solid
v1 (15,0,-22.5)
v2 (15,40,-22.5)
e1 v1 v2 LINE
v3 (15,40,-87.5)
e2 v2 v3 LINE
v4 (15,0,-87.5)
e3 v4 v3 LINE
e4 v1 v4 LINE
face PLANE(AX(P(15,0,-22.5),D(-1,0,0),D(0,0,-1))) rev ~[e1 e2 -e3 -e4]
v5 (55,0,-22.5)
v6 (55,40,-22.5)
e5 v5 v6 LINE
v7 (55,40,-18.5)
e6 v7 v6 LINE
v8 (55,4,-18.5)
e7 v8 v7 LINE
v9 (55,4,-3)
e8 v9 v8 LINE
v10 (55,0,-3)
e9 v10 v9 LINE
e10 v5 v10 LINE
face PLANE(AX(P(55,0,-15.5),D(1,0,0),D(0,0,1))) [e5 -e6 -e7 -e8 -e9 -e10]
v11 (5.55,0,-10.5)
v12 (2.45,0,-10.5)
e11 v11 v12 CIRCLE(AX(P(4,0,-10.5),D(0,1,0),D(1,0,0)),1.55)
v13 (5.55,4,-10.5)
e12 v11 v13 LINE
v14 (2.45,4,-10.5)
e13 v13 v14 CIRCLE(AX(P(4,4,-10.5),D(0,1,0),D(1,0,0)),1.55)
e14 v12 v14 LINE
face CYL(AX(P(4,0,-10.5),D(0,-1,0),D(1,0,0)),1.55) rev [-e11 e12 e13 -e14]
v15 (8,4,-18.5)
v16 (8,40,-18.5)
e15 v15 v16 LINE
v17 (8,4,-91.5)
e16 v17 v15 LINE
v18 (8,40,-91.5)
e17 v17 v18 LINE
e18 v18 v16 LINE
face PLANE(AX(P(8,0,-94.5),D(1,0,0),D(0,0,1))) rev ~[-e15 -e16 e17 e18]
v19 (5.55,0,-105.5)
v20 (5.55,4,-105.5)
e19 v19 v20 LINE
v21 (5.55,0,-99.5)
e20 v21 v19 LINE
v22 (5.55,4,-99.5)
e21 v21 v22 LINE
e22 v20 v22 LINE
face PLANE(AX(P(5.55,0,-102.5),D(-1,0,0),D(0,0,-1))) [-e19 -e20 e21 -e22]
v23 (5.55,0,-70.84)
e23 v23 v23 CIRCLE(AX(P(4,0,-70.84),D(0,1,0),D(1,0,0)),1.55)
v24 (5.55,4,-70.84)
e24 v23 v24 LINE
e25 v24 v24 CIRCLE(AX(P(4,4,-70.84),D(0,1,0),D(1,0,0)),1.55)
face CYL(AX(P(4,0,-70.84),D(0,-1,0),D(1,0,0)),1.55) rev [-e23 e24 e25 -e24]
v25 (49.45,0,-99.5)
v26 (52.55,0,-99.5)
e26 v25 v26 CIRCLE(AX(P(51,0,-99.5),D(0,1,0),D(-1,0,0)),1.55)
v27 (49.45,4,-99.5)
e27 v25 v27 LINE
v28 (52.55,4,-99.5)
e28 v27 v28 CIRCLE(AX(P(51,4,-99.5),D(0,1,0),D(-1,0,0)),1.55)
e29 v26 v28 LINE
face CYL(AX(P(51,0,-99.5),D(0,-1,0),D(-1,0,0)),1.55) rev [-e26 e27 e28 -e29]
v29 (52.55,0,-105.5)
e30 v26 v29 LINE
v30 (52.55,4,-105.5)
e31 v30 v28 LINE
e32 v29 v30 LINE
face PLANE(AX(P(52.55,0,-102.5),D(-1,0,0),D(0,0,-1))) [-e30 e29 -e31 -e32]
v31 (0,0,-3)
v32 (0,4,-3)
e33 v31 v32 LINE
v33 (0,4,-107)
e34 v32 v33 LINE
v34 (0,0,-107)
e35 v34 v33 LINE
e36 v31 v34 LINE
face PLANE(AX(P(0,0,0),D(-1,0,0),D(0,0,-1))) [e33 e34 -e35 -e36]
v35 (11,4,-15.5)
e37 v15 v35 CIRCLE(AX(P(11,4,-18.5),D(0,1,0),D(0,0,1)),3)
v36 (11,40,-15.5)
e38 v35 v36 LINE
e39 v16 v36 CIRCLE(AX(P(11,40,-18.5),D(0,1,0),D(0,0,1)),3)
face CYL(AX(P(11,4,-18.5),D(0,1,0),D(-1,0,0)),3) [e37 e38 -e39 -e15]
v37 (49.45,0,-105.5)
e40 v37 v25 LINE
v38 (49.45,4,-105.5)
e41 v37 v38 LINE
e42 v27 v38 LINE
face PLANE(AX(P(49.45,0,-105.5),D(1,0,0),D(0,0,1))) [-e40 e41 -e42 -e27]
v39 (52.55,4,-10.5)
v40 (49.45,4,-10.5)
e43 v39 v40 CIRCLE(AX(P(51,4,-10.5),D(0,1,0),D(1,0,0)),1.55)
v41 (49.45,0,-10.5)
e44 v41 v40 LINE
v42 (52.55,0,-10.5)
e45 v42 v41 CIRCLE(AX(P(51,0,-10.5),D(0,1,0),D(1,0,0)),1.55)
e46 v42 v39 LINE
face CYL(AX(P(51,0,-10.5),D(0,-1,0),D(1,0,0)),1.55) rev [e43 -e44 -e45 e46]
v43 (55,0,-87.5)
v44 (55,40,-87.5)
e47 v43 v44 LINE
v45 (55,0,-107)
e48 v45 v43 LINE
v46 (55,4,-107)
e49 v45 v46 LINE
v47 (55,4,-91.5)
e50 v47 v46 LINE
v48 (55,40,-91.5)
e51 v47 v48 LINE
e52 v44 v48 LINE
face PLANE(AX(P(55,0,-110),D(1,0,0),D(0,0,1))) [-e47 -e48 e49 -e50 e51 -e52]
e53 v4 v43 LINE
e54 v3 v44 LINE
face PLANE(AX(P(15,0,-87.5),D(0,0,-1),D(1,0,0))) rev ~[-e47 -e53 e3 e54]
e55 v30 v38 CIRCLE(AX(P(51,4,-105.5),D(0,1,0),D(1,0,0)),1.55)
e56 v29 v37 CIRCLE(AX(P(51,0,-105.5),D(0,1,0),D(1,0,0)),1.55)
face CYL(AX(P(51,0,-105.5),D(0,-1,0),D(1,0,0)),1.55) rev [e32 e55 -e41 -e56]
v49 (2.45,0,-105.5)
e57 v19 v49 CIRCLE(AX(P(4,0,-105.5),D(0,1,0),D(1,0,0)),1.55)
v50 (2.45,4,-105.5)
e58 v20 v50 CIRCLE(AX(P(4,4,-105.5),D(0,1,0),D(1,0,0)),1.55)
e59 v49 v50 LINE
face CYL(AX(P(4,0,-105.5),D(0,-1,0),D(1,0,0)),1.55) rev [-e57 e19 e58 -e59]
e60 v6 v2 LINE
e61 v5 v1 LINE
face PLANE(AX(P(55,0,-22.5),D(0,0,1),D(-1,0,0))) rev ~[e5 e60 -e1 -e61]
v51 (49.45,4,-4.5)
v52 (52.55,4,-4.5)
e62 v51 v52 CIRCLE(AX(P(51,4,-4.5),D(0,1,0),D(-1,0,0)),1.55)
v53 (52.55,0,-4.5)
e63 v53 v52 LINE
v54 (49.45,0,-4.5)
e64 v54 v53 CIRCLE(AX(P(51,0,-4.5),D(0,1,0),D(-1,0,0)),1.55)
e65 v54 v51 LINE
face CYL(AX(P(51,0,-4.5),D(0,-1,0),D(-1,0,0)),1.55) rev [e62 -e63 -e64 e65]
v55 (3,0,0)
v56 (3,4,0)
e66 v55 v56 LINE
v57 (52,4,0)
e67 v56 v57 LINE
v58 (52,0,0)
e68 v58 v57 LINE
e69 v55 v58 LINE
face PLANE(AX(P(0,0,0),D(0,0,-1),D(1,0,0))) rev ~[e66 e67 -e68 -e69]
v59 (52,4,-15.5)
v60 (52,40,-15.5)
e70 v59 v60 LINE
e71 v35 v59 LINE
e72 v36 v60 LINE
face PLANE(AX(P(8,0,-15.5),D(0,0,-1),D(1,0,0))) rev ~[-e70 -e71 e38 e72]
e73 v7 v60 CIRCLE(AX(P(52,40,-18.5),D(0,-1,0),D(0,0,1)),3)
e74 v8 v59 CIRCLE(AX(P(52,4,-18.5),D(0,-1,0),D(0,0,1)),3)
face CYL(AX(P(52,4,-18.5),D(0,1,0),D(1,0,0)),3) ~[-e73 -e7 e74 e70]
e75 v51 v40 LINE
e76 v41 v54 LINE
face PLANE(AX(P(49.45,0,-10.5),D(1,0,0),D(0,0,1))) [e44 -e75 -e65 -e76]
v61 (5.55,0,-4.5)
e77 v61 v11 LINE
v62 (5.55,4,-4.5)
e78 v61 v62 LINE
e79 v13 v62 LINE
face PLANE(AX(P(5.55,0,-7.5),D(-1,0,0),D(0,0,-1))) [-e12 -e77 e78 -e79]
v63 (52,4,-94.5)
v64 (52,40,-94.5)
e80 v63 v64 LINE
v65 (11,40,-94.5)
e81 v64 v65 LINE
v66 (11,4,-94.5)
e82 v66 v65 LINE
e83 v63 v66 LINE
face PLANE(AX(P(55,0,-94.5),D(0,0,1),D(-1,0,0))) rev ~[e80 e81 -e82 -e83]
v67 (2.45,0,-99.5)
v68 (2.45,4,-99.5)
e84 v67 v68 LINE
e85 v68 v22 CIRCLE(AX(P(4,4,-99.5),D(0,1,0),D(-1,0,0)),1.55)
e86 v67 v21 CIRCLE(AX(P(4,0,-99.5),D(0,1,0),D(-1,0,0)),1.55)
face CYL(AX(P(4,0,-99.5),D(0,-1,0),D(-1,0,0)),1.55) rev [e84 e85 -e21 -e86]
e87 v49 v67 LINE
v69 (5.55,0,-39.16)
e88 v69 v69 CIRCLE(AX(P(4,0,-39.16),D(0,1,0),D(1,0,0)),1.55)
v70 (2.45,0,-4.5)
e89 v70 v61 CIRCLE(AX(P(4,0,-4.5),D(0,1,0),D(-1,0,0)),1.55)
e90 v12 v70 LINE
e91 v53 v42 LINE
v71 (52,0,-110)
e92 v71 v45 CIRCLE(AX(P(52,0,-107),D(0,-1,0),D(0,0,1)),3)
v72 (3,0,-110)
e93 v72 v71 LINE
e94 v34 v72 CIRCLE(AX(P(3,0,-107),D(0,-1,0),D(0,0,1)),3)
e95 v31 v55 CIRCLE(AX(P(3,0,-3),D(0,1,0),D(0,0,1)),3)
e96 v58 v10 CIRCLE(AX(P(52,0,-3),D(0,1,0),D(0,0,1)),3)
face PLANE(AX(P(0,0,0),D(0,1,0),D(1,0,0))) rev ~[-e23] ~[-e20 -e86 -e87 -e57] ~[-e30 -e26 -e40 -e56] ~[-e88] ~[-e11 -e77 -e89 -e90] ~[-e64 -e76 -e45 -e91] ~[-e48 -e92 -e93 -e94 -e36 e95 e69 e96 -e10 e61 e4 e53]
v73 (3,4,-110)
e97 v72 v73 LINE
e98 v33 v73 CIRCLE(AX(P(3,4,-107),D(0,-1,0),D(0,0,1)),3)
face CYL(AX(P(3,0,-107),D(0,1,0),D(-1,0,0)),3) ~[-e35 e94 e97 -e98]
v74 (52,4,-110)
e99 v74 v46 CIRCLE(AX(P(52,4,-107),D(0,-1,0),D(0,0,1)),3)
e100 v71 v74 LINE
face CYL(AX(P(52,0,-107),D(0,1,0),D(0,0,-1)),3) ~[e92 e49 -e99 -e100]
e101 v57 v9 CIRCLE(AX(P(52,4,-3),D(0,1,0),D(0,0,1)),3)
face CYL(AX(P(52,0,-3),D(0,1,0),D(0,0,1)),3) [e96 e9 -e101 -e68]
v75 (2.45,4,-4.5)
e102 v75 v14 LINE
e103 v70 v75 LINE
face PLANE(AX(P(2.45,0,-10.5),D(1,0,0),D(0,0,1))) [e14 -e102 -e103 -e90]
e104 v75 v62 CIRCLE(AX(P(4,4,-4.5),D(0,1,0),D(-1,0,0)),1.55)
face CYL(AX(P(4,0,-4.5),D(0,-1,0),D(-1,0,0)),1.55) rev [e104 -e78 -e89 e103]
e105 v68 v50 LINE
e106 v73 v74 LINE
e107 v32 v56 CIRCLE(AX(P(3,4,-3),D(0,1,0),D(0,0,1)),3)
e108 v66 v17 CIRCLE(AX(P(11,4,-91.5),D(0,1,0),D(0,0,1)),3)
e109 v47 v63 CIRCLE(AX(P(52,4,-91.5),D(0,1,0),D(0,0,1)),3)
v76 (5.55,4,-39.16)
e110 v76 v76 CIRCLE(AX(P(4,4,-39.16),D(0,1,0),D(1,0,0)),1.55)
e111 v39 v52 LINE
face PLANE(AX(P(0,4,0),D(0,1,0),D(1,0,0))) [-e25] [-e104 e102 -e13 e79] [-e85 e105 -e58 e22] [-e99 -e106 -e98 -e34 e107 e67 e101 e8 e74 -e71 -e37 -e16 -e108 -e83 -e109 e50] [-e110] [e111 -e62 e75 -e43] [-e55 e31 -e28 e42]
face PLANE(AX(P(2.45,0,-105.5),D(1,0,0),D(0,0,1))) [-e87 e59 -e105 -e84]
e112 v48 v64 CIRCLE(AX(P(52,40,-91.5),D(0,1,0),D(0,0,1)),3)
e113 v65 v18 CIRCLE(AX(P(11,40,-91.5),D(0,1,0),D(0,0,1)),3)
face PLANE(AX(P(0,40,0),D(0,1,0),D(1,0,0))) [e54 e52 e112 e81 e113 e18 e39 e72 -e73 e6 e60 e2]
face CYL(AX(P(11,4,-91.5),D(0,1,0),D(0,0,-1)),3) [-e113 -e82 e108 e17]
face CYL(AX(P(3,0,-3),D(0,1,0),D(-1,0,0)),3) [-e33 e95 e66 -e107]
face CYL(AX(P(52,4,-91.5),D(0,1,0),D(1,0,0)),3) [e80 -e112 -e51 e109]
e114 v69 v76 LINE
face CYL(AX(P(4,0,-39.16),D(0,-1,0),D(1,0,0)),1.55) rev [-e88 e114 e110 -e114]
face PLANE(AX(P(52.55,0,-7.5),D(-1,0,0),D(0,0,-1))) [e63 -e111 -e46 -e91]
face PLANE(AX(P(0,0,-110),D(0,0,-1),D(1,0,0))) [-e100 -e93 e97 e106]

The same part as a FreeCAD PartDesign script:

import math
import FreeCAD as App
import Part
import Sketcher


def edges_at(feature, points):
    """Names of the edges that pass closest to the given points."""
    edges = feature.Shape.Edges
    near = lambda p: min(range(len(edges)), key=lambda i: edges[i].distToShape(Part.Vertex(*p))[0])
    return sorted({f"Edge{near(p) + 1}" for p in points})

doc = App.newDocument("Part")
body = doc.addObject("PartDesign::Body", "Body")

sketch1 = body.newObject("Sketcher::SketchObject", "Sketch")
sketch1.AttachmentSupport = (doc.getObject("XZ_Plane"), [""])
sketch1.MapMode = "FlatFace"
sketch1.addGeometry([
    Part.LineSegment(App.Vector(0, -110, 0), App.Vector(0, 0, 0)),
    Part.LineSegment(App.Vector(0, 0, 0), App.Vector(55, 0, 0)),
    Part.LineSegment(App.Vector(55, 0, 0), App.Vector(55, -15.5, 0)),
    Part.LineSegment(App.Vector(55, -15.5, 0), App.Vector(8, -15.5, 0)),
    Part.LineSegment(App.Vector(8, -15.5, 0), App.Vector(8, -94.5, 0)),
    Part.LineSegment(App.Vector(8, -94.5, 0), App.Vector(55, -94.5, 0)),
    Part.LineSegment(App.Vector(55, -94.5, 0), App.Vector(55, -110, 0)),
    Part.LineSegment(App.Vector(55, -110, 0), App.Vector(0, -110, 0)),
    Part.LineSegment(App.Vector(5.55, -10.5, 0), App.Vector(5.55, -4.5, 0)),
    Part.ArcOfCircle(Part.Circle(App.Vector(4, -4.5, 0), App.Vector(0, 0, 1), 1.55), math.radians(0), math.radians(180)),
    Part.LineSegment(App.Vector(2.45, -4.5, 0), App.Vector(2.45, -10.5, 0)),
    Part.ArcOfCircle(Part.Circle(App.Vector(4, -10.5, 0), App.Vector(0, 0, 1), 1.55), math.radians(180), math.radians(360)),
    Part.Circle(App.Vector(4, -39.16, 0), App.Vector(0, 0, 1), 1.55),
    Part.LineSegment(App.Vector(52.55, -10.5, 0), App.Vector(52.55, -4.5, 0)),
    Part.ArcOfCircle(Part.Circle(App.Vector(51, -4.5, 0), App.Vector(0, 0, 1), 1.55), math.radians(0), math.radians(180)),
    Part.LineSegment(App.Vector(49.45, -4.5, 0), App.Vector(49.45, -10.5, 0)),
    Part.ArcOfCircle(Part.Circle(App.Vector(51, -10.5, 0), App.Vector(0, 0, 1), 1.55), math.radians(180), math.radians(360)),
    Part.Circle(App.Vector(4, -70.84, 0), App.Vector(0, 0, 1), 1.55),
    Part.LineSegment(App.Vector(5.55, -105.5, 0), App.Vector(5.55, -99.5, 0)),
    Part.ArcOfCircle(Part.Circle(App.Vector(4, -99.5, 0), App.Vector(0, 0, 1), 1.55), math.radians(0), math.radians(180)),
    Part.LineSegment(App.Vector(2.45, -99.5, 0), App.Vector(2.45, -105.5, 0)),
    Part.ArcOfCircle(Part.Circle(App.Vector(4, -105.5, 0), App.Vector(0, 0, 1), 1.55), math.radians(180), math.radians(360)),
    Part.LineSegment(App.Vector(52.55, -105.5, 0), App.Vector(52.55, -99.5, 0)),
    Part.ArcOfCircle(Part.Circle(App.Vector(51, -99.5, 0), App.Vector(0, 0, 1), 1.55), math.radians(0), math.radians(180)),
    Part.LineSegment(App.Vector(49.45, -99.5, 0), App.Vector(49.45, -105.5, 0)),
    Part.ArcOfCircle(Part.Circle(App.Vector(51, -105.5, 0), App.Vector(0, 0, 1), 1.55), math.radians(180), math.radians(360)),
], False)
sketch1.addConstraint([
    Sketcher.Constraint("Coincident", 0, 2, 1, 1),
    Sketcher.Constraint("Coincident", 1, 2, 2, 1),
    Sketcher.Constraint("Coincident", 2, 2, 3, 1),
    Sketcher.Constraint("Coincident", 3, 2, 4, 1),
    Sketcher.Constraint("Coincident", 4, 2, 5, 1),
    Sketcher.Constraint("Coincident", 5, 2, 6, 1),
    Sketcher.Constraint("Coincident", 6, 2, 7, 1),
    Sketcher.Constraint("Coincident", 7, 2, 0, 1),
    Sketcher.Constraint("Tangent", 8, 2, 9, 1),
    Sketcher.Constraint("Tangent", 9, 2, 10, 1),
    Sketcher.Constraint("Tangent", 10, 2, 11, 1),
    Sketcher.Constraint("Tangent", 11, 2, 8, 1),
    Sketcher.Constraint("Tangent", 13, 2, 14, 1),
    Sketcher.Constraint("Tangent", 14, 2, 15, 1),
    Sketcher.Constraint("Tangent", 15, 2, 16, 1),
    Sketcher.Constraint("Tangent", 16, 2, 13, 1),
    Sketcher.Constraint("Tangent", 18, 2, 19, 1),
    Sketcher.Constraint("Tangent", 19, 2, 20, 1),
    Sketcher.Constraint("Tangent", 20, 2, 21, 1),
    Sketcher.Constraint("Tangent", 21, 2, 18, 1),
    Sketcher.Constraint("Tangent", 22, 2, 23, 1),
    Sketcher.Constraint("Tangent", 23, 2, 24, 1),
    Sketcher.Constraint("Tangent", 24, 2, 25, 1),
    Sketcher.Constraint("Tangent", 25, 2, 22, 1),
    Sketcher.Constraint("Vertical", 0),
    Sketcher.Constraint("Horizontal", 1),
    Sketcher.Constraint("Vertical", 2),
    Sketcher.Constraint("Horizontal", 3),
    Sketcher.Constraint("Vertical", 4),
    Sketcher.Constraint("Horizontal", 5),
    Sketcher.Constraint("Vertical", 6),
    Sketcher.Constraint("Horizontal", 7),
    Sketcher.Constraint("Vertical", 8),
    Sketcher.Constraint("Vertical", 10),
    Sketcher.Constraint("Vertical", 13),
    Sketcher.Constraint("Vertical", 15),
    Sketcher.Constraint("Vertical", 18),
    Sketcher.Constraint("Vertical", 20),
    Sketcher.Constraint("Vertical", 22),
    Sketcher.Constraint("Vertical", 24),
    Sketcher.Constraint("Coincident", 0, 2, -1, 1),
    Sketcher.Constraint("Equal", 11, 12),
    Sketcher.Constraint("Equal", 12, 14),
    Sketcher.Constraint("Equal", 16, 17),
    Sketcher.Constraint("Equal", 17, 19),
    Sketcher.Constraint("Equal", 21, 23),
    Sketcher.Constraint("Horizontal", 9, 3, 14, 3),
    Sketcher.Constraint("Horizontal", 11, 3, 16, 3),
    Sketcher.Constraint("Horizontal", 19, 3, 23, 3),
    Sketcher.Constraint("Horizontal", 21, 3, 25, 3),
    Sketcher.Constraint("Vertical", 11, 3, 12, 3),
    Sketcher.Constraint("Vertical", 12, 3, 17, 3),
    Sketcher.Constraint("Vertical", 17, 3, 19, 3),
    Sketcher.Constraint("Vertical", 16, 3, 23, 3),
    Sketcher.Constraint("Vertical", 2, 2, 5, 2),
    Sketcher.Constraint("Equal", 2, 6),
    Sketcher.Constraint("Equal", 15, 18),
    Sketcher.Constraint("Diameter", 12, 3.1),
    Sketcher.Constraint("DistanceY", 2, 2, 2, 1, 15.5),
    Sketcher.Constraint("DistanceX", -1, 1, 9, 3, 4.0),
    Sketcher.Constraint("DistanceX", -1, 1, 3, 2, 8.0),
    Sketcher.Constraint("DistanceX", 14, 3, 1, 2, 4.0),
    Sketcher.Constraint("DistanceX", 1, 1, 1, 2, 55.0),
    Sketcher.Constraint("DistanceY", 0, 1, 0, 2, 110.0),
    Sketcher.Constraint("DistanceY", 8, 1, 8, 2, 6.0),
    Sketcher.Constraint("DistanceY", 19, 3, 11, 3, 89.0),
    Sketcher.Constraint("DistanceY", 2, 2, 16, 3, 5.0),
    Sketcher.Constraint("DistanceY", 12, 3, -1, 1, 39.16),
    Sketcher.Constraint("DistanceY", 17, 3, -1, 1, 70.84),
])
pad1 = body.newObject("PartDesign::Pad", "Pad")
pad1.Profile = sketch1
pad1.Length = 4
pad1.Reversed = True

sketch2 = body.newObject("Sketcher::SketchObject", "Sketch001")
sketch2.AttachmentSupport = (doc.getObject("XZ_Plane"), [""])
sketch2.MapMode = "FlatFace"
sketch2.addGeometry([
    Part.LineSegment(App.Vector(8, -15.5, 0), App.Vector(55, -15.5, 0)),
    Part.LineSegment(App.Vector(55, -15.5, 0), App.Vector(55, -22.5, 0)),
    Part.LineSegment(App.Vector(55, -22.5, 0), App.Vector(15, -22.5, 0)),
    Part.LineSegment(App.Vector(15, -22.5, 0), App.Vector(15, -87.5, 0)),
    Part.LineSegment(App.Vector(15, -87.5, 0), App.Vector(55, -87.5, 0)),
    Part.LineSegment(App.Vector(55, -87.5, 0), App.Vector(55, -94.5, 0)),
    Part.LineSegment(App.Vector(55, -94.5, 0), App.Vector(8, -94.5, 0)),
    Part.LineSegment(App.Vector(8, -94.5, 0), App.Vector(8, -15.5, 0)),
], False)
sketch2.addConstraint([
    Sketcher.Constraint("Coincident", 0, 2, 1, 1),
    Sketcher.Constraint("Coincident", 1, 2, 2, 1),
    Sketcher.Constraint("Coincident", 2, 2, 3, 1),
    Sketcher.Constraint("Coincident", 3, 2, 4, 1),
    Sketcher.Constraint("Coincident", 4, 2, 5, 1),
    Sketcher.Constraint("Coincident", 5, 2, 6, 1),
    Sketcher.Constraint("Coincident", 6, 2, 7, 1),
    Sketcher.Constraint("Coincident", 7, 2, 0, 1),
    Sketcher.Constraint("Horizontal", 0),
    Sketcher.Constraint("Vertical", 1),
    Sketcher.Constraint("Horizontal", 2),
    Sketcher.Constraint("Vertical", 3),
    Sketcher.Constraint("Horizontal", 4),
    Sketcher.Constraint("Vertical", 5),
    Sketcher.Constraint("Horizontal", 6),
    Sketcher.Constraint("Vertical", 7),
    Sketcher.Constraint("Vertical", 1, 2, 4, 2),
    Sketcher.Constraint("Equal", 1, 5),
    Sketcher.Constraint("DistanceX", 2, 2, 2, 1, 40.0),
    Sketcher.Constraint("DistanceY", 1, 2, 1, 1, 7.0),
    Sketcher.Constraint("DistanceY", 3, 2, 3, 1, 65.0),
    Sketcher.Constraint("DistanceX", -1, 1, 6, 2, 8.0),
    Sketcher.Constraint("DistanceX", 6, 2, 3, 2, 7.0),
    Sketcher.Constraint("DistanceY", 0, 2, -1, 1, 15.5),
])
pad2 = body.newObject("PartDesign::Pad", "Pad001")
pad2.Profile = sketch2
pad2.Length = 40
pad2.Reversed = True
doc.recompute()

fillet = body.newObject("PartDesign::Fillet", "Fillet")
fillet.Base = (pad2, edges_at(pad2, [
    (55, 2, 0),
    (8, 22, -15.5),
    (0, 2, 0),
    (55, 2, -110),
    (8, 22, -94.5),
    (0, 2, -110),
]))
fillet.Radius = 3
doc.recompute()

fillet2 = body.newObject("PartDesign::Fillet", "Fillet001")
fillet2.Base = (fillet, edges_at(fillet, [(55, 22, -94.5), (55, 22, -15.5)]))
fillet2.Radius = 3

doc.recompute()
